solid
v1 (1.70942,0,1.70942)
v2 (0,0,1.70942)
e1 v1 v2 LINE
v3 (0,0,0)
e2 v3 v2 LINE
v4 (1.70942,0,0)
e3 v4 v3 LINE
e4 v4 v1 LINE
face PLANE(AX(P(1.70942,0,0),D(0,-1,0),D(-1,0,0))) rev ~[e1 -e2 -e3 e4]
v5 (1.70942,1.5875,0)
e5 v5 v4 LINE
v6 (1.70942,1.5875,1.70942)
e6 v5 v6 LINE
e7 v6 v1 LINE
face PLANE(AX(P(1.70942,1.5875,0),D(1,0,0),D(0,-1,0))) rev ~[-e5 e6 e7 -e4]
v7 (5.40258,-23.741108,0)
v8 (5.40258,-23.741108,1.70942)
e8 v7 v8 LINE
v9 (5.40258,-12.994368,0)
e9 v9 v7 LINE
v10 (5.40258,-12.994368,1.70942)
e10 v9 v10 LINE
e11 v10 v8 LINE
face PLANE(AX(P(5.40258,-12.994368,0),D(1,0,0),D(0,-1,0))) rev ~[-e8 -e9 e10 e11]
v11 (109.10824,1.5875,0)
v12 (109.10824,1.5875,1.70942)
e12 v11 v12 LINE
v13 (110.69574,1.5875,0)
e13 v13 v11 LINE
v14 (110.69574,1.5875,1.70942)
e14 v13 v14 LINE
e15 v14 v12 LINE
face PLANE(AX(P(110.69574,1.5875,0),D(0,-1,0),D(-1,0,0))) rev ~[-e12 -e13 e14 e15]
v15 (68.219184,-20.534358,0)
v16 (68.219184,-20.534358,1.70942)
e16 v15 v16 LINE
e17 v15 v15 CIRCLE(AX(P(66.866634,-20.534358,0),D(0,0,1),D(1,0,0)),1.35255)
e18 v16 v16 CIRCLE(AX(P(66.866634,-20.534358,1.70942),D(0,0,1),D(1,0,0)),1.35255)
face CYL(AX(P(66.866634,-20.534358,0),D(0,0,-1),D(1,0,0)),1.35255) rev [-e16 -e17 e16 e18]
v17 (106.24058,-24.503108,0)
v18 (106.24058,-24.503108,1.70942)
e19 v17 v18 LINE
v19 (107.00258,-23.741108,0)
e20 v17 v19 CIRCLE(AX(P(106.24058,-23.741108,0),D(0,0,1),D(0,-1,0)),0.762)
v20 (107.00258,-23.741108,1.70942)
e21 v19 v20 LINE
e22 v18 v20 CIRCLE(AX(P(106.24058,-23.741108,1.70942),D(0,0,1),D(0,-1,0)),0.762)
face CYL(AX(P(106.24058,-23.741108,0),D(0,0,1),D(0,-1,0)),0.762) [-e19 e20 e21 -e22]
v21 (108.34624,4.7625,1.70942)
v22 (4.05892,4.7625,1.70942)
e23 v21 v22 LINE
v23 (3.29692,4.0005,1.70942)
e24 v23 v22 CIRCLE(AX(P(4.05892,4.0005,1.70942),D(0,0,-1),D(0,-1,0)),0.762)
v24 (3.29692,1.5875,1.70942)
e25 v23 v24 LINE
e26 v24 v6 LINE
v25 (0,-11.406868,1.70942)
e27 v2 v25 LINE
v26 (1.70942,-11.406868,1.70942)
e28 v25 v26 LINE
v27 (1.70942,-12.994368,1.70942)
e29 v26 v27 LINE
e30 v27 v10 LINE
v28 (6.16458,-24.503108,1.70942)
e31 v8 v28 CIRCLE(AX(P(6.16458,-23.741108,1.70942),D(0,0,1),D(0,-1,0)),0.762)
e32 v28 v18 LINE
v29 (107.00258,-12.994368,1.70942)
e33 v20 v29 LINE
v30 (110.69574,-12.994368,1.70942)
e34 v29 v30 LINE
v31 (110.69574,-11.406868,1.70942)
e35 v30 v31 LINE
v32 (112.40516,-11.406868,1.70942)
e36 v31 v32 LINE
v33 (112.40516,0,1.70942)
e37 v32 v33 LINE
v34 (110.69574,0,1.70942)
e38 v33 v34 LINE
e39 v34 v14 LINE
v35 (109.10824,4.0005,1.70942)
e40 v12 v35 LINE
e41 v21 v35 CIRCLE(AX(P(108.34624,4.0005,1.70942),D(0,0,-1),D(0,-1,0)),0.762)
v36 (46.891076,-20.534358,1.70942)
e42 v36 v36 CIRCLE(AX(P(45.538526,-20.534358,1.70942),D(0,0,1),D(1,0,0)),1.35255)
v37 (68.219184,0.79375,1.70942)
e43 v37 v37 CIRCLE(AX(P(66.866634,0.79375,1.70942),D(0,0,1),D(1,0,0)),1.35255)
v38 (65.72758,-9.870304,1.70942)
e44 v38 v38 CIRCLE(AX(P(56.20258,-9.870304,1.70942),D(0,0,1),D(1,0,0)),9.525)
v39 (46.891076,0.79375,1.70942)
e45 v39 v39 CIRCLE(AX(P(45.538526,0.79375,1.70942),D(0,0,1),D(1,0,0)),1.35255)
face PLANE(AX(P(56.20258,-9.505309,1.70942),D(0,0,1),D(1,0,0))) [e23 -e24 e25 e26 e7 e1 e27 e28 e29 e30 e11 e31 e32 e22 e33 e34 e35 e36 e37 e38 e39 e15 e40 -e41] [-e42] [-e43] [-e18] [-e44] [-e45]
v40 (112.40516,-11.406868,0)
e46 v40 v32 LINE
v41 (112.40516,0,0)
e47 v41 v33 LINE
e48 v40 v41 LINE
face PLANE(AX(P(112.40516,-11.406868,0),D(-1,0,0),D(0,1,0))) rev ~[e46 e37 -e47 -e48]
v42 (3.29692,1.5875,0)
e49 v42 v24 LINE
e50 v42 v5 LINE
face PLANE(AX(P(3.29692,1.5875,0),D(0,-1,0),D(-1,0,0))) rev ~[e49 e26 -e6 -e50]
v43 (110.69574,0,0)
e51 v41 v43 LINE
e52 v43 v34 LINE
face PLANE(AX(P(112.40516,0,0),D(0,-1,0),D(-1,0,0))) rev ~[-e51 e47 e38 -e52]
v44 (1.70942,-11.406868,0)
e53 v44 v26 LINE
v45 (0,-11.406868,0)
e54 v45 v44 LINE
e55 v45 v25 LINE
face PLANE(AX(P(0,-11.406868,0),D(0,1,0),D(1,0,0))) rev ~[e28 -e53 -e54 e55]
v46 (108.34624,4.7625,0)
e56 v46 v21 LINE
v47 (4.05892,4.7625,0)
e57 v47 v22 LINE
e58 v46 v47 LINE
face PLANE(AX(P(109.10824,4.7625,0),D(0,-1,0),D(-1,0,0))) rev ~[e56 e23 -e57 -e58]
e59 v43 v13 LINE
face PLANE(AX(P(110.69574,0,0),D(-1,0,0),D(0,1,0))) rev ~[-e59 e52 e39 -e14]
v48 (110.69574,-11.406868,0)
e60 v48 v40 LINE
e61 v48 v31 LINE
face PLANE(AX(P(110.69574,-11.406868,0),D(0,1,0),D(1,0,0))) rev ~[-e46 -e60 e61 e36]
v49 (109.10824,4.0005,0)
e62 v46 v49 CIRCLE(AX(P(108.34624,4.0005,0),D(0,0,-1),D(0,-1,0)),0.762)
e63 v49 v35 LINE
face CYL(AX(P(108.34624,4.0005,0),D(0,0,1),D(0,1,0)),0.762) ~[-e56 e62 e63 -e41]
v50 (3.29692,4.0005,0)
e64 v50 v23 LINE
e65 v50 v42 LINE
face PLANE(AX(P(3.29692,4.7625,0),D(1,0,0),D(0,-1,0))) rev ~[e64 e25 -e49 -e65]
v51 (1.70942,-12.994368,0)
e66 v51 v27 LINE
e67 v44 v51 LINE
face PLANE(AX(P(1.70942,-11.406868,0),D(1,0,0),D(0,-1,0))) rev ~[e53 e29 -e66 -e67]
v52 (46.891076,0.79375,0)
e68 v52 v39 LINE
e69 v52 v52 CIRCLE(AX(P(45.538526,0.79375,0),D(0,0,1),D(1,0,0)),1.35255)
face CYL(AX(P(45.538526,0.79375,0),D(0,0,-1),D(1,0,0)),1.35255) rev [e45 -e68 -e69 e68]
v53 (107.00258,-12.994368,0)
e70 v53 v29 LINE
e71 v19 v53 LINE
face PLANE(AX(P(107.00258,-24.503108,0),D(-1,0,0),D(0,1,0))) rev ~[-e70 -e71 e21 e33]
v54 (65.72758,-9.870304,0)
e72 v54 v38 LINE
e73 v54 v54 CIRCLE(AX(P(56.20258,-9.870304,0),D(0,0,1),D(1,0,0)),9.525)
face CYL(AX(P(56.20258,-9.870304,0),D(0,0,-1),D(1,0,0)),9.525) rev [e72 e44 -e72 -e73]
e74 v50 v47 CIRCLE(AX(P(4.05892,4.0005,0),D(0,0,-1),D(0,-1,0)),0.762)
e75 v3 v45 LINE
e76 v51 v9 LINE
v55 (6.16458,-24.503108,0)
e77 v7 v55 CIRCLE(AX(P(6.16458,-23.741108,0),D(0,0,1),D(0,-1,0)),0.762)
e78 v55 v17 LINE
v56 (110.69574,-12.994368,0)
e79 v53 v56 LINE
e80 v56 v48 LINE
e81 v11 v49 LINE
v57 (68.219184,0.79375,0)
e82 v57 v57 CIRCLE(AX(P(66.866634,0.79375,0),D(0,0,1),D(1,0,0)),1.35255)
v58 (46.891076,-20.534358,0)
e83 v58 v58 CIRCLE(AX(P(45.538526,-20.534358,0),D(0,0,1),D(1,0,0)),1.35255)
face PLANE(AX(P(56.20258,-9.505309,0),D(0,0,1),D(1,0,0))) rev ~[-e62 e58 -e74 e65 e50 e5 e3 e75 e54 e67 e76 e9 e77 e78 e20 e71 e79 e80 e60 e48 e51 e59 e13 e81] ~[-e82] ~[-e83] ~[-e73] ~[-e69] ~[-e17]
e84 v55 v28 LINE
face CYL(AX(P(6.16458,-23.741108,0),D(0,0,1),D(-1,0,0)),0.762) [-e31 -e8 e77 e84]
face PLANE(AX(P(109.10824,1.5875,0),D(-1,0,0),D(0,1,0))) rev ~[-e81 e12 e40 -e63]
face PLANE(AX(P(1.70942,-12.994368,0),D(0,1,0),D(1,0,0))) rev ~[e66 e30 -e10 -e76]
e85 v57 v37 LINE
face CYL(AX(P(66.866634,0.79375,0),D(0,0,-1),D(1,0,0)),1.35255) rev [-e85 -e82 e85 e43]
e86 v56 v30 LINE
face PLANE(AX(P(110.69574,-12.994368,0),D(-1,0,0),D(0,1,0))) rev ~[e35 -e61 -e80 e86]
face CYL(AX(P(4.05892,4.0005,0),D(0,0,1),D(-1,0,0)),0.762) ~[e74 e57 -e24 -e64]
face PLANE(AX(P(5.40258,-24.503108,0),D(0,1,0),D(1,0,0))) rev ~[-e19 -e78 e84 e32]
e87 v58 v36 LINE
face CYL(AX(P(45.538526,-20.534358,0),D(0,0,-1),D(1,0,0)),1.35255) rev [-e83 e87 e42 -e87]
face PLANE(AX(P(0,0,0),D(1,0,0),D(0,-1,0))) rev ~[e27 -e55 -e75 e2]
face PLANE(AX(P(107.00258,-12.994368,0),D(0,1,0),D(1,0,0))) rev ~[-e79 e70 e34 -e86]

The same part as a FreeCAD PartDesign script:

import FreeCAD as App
import Part
import Sketcher

V = App.Vector
Q = App.Units.Quantity


def edges_at(feature, points):
    """Names of the edges that pass closest to the given points."""
    edges = feature.Shape.Edges
    near = lambda p: min(range(len(edges)), key=lambda i: edges[i].distToShape(Part.Vertex(*p))[0])
    return sorted({f"Edge{near(p) + 1}" for p in points})

doc = App.newDocument("Part")
params = doc.addObject("Spreadsheet::Sheet", "Params")
for row, (alias, value) in enumerate([
    ("sketch1_diameter", "0.75 in"),
    ("sketch1_width", "4 in"),
    ("sketch1_width2", "0.0625 in"),
    ("sketch1_height", "0.125 in"),
    ("pad1_length", "0.0673 in"),
    ("fillet_radius", "0.03 in"),
], start=1):
    params.set(f"A{row}", alias)
    params.set(f"B{row}", "=" + value)
    params.setAlias(f"B{row}", alias)

body = doc.addObject("PartDesign::Body", "Body")

# Sketch on XY plane
sketch1 = doc.addObject("Sketcher::SketchObject", "Sketch")
body.addObject(sketch1)
sketch1.AttachmentSupport = (doc.XY_Plane, [""])
sketch1.MapMode = "FlatFace"
sketch1.addGeometry(Part.LineSegment(V(1.7, 0, 0), V(0, 0, 0)), False)
sketch1.addGeometry(Part.LineSegment(V(0, 0, 0), V(0, -11.4, 0)), False)
sketch1.addGeometry(Part.LineSegment(V(0, -11.4, 0), V(1.7, -11.4, 0)), False)
sketch1.addGeometry(Part.LineSegment(V(1.7, -11.4, 0), V(1.7, -13, 0)), False)
sketch1.addGeometry(Part.LineSegment(V(1.7, -13, 0), V(5.4, -13, 0)), False)
sketch1.addGeometry(Part.LineSegment(V(5.4, -13, 0), V(5.4, -24.5, 0)), False)
sketch1.addGeometry(Part.LineSegment(V(5.4, -24.5, 0), V(107, -24.5, 0)), False)
sketch1.addGeometry(Part.LineSegment(V(107, -24.5, 0), V(107, -13, 0)), False)
sketch1.addGeometry(Part.LineSegment(V(107, -13, 0), V(110.7, -13, 0)), False)
sketch1.addGeometry(Part.LineSegment(V(110.7, -13, 0), V(110.7, -11.4, 0)), False)
sketch1.addGeometry(Part.LineSegment(V(110.7, -11.4, 0), V(112.4, -11.4, 0)), False)
sketch1.addGeometry(Part.LineSegment(V(112.4, -11.4, 0), V(112.4, 0, 0)), False)
sketch1.addGeometry(Part.LineSegment(V(112.4, 0, 0), V(110.7, 0, 0)), False)
sketch1.addGeometry(Part.LineSegment(V(110.7, 0, 0), V(110.7, 1.6, 0)), False)
sketch1.addGeometry(Part.LineSegment(V(110.7, 1.6, 0), V(109.1, 1.6, 0)), False)
sketch1.addGeometry(Part.LineSegment(V(109.1, 1.6, 0), V(109.1, 4.8, 0)), False)
sketch1.addGeometry(Part.LineSegment(V(109.1, 4.8, 0), V(3.3, 4.8, 0)), False)
sketch1.addGeometry(Part.LineSegment(V(3.3, 4.8, 0), V(3.3, 1.6, 0)), False)
sketch1.addGeometry(Part.LineSegment(V(3.3, 1.6, 0), V(1.7, 1.6, 0)), False)
sketch1.addGeometry(Part.LineSegment(V(1.7, 1.6, 0), V(1.7, 0, 0)), False)
sketch1.addGeometry(Part.Circle(V(45.5, -20.5, 0), V(0, 0, 1), 1.4), False)
sketch1.addGeometry(Part.Circle(V(66.9, -20.5, 0), V(0, 0, 1), 1.4), False)
sketch1.addGeometry(Part.Circle(V(45.5, 0.8, 0), V(0, 0, 1), 1.4), False)
sketch1.addGeometry(Part.Circle(V(56.2, -9.9, 0), V(0, 0, 1), 9.5), False)
sketch1.addGeometry(Part.Circle(V(66.9, 0.8, 0), V(0, 0, 1), 1.4), False)
sketch1.addConstraint(Sketcher.Constraint("Coincident", 0, 2, 1, 1))
sketch1.addConstraint(Sketcher.Constraint("Coincident", 1, 2, 2, 1))
sketch1.addConstraint(Sketcher.Constraint("Coincident", 2, 2, 3, 1))
sketch1.addConstraint(Sketcher.Constraint("Coincident", 3, 2, 4, 1))
sketch1.addConstraint(Sketcher.Constraint("Coincident", 4, 2, 5, 1))
sketch1.addConstraint(Sketcher.Constraint("Coincident", 5, 2, 6, 1))
sketch1.addConstraint(Sketcher.Constraint("Coincident", 6, 2, 7, 1))
sketch1.addConstraint(Sketcher.Constraint("Coincident", 7, 2, 8, 1))
sketch1.addConstraint(Sketcher.Constraint("Coincident", 8, 2, 9, 1))
sketch1.addConstraint(Sketcher.Constraint("Coincident", 9, 2, 10, 1))
sketch1.addConstraint(Sketcher.Constraint("Coincident", 10, 2, 11, 1))
sketch1.addConstraint(Sketcher.Constraint("Coincident", 11, 2, 12, 1))
sketch1.addConstraint(Sketcher.Constraint("Coincident", 12, 2, 13, 1))
sketch1.addConstraint(Sketcher.Constraint("Coincident", 13, 2, 14, 1))
sketch1.addConstraint(Sketcher.Constraint("Coincident", 14, 2, 15, 1))
sketch1.addConstraint(Sketcher.Constraint("Coincident", 15, 2, 16, 1))
sketch1.addConstraint(Sketcher.Constraint("Coincident", 16, 2, 17, 1))
sketch1.addConstraint(Sketcher.Constraint("Coincident", 17, 2, 18, 1))
sketch1.addConstraint(Sketcher.Constraint("Coincident", 18, 2, 19, 1))
sketch1.addConstraint(Sketcher.Constraint("Coincident", 19, 2, 0, 1))
sketch1.addConstraint(Sketcher.Constraint("Horizontal", 0))
sketch1.addConstraint(Sketcher.Constraint("Vertical", 1))
sketch1.addConstraint(Sketcher.Constraint("Horizontal", 2))
sketch1.addConstraint(Sketcher.Constraint("Vertical", 3))
sketch1.addConstraint(Sketcher.Constraint("Horizontal", 4))
sketch1.addConstraint(Sketcher.Constraint("Vertical", 5))
sketch1.addConstraint(Sketcher.Constraint("Horizontal", 6))
sketch1.addConstraint(Sketcher.Constraint("Vertical", 7))
sketch1.addConstraint(Sketcher.Constraint("Horizontal", 8))
sketch1.addConstraint(Sketcher.Constraint("Vertical", 9))
sketch1.addConstraint(Sketcher.Constraint("Horizontal", 10))
sketch1.addConstraint(Sketcher.Constraint("Vertical", 11))
sketch1.addConstraint(Sketcher.Constraint("Horizontal", 12))
sketch1.addConstraint(Sketcher.Constraint("Vertical", 13))
sketch1.addConstraint(Sketcher.Constraint("Horizontal", 14))
sketch1.addConstraint(Sketcher.Constraint("Vertical", 15))
sketch1.addConstraint(Sketcher.Constraint("Horizontal", 16))
sketch1.addConstraint(Sketcher.Constraint("Vertical", 17))
sketch1.addConstraint(Sketcher.Constraint("Horizontal", 18))
sketch1.addConstraint(Sketcher.Constraint("Vertical", 19))
sketch1.addConstraint(Sketcher.Constraint("Coincident", 0, 2, -1, 1))
sketch1.addConstraint(Sketcher.Constraint("Equal", 20, 21))
sketch1.addConstraint(Sketcher.Constraint("Equal", 21, 22))
sketch1.addConstraint(Sketcher.Constraint("Equal", 22, 24))
sketch1.addConstraint(Sketcher.Constraint("PointOnObject", 11, 2, -1))
sketch1.addConstraint(Sketcher.Constraint("Horizontal", 20, 3, 21, 3))
sketch1.addConstraint(Sketcher.Constraint("Horizontal", 22, 3, 24, 3))
sketch1.addConstraint(Sketcher.Constraint("Horizontal", 4, 2, 7, 2))
sketch1.addConstraint(Sketcher.Constraint("Horizontal", 2, 2, 9, 2))
sketch1.addConstraint(Sketcher.Constraint("Horizontal", 14, 2, 17, 2))
sketch1.addConstraint(Sketcher.Constraint("Vertical", 20, 3, 22, 3))
sketch1.addConstraint(Sketcher.Constraint("Vertical", 21, 3, 24, 3))
sketch1.addConstraint(Sketcher.Constraint("Vertical", 9, 2, 12, 2))
sketch1.addConstraint(Sketcher.Constraint("Vertical", 3, 2, 18, 2))
sketch1.addConstraint(Sketcher.Constraint("Equal", 4, 8))
sketch1.addConstraint(Sketcher.Constraint("Equal", 2, 10))
sketch1.addConstraint(Sketcher.Constraint("Equal", 14, 18))
sketch1.addConstraint(Sketcher.Constraint("Equal", 18, 3))
sketch1.addConstraint(Sketcher.Constraint("Equal", 9, 13))
sketch1.addConstraint(Sketcher.Constraint("Diameter", 23, Q("0.75 in")))
sketch1.addConstraint(Sketcher.Constraint("DistanceX", 6, 1, 6, 2, Q("4 in")))
sketch1.addConstraint(Sketcher.Constraint("DistanceX", 23, 3, 6, 2, Q("2 in")))
sketch1.addConstraint(Sketcher.Constraint("Diameter", 20, Q("0.1065 in")))
sketch1.addConstraint(Sketcher.Constraint("DistanceX", 14, 2, 14, 1, Q("0.0625 in")))
sketch1.addConstraint(Sketcher.Constraint("DistanceY", 15, 1, 15, 2, Q("0.125 in")))
sketch1.addConstraint(Sketcher.Constraint("DistanceX", 0, 2, 0, 1, Q("0.0673 in")))
sketch1.addConstraint(Sketcher.Constraint("DistanceX", 4, 1, 4, 2, Q("0.1454 in")))
sketch1.addConstraint(Sketcher.Constraint("DistanceY", 5, 2, 5, 1, Q("0.4531 in")))
sketch1.addConstraint(Sketcher.Constraint("DistanceY", -1, 1, 22, 3, Q("0.03125 in")))
sketch1.addConstraint(Sketcher.Constraint("DistanceY", 6, 2, 21, 3, Q("0.15625 in")))
sketch1.addConstraint(Sketcher.Constraint("DistanceY", 1, 2, 1, 1, Q("11.406868 mm")))
sketch1.addConstraint(Sketcher.Constraint("DistanceX", 20, 3, 21, 3, Q("21.328108 mm")))
sketch1.addConstraint(Sketcher.Constraint("DistanceX", -1, 1, 20, 3, Q("45.538526 mm")))
sketch1.addConstraint(Sketcher.Constraint("DistanceY", 23, 3, -1, 1, Q("9.870304 mm")))
sketch1.setExpression("Constraints[59]", "Params.sketch1_diameter")
sketch1.setExpression("Constraints[60]", "Params.sketch1_width")
sketch1.setExpression("Constraints[63]", "Params.sketch1_width2")
sketch1.setExpression("Constraints[64]", "Params.sketch1_height")
pad1 = doc.addObject("PartDesign::Pad", "Pad")
body.addObject(pad1)
pad1.Profile = sketch1
pad1.setExpression("Length", "Params.pad1_length")
doc.recompute()

fillet = doc.addObject("PartDesign::Fillet", "Fillet")
body.addObject(fillet)
fillet.Base = (pad1, edges_at(pad1, [
    (3.297, 4.763, 0.855),
    (5.403, -24.503, 0.855),
    (107.003, -24.503, 0.855),
    (109.108, 4.763, 0.855),
]))
fillet.setExpression("Radius", "Params.fillet_radius")

doc.recompute()
